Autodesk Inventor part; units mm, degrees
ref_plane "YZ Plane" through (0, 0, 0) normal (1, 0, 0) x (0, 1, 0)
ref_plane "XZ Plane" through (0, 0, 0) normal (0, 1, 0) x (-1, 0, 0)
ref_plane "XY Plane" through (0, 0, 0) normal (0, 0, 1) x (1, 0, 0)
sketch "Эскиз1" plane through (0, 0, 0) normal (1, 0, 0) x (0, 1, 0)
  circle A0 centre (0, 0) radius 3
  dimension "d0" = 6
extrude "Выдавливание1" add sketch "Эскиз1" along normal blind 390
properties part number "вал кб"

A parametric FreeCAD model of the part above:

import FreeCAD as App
import Part
import Sketcher
Q = App.Units.Quantity

doc = App.newDocument("Part")
body = doc.addObject("PartDesign::Body", "Body")

sketch1 = doc.addObject("Sketcher::SketchObject", "Sketch")
body.addObject(sketch1)
sketch1.AttachmentSupport = (doc.YZ_Plane, [""])
sketch1.MapMode = "FlatFace"
sketch1.addGeometry(Part.Circle(App.Vector(0, 0, 0), App.Vector(0, 0, 1), 3), False)
sketch1.addConstraint([
    Sketcher.Constraint("Coincident", 0, 3, -1, 1),
    Sketcher.Constraint("Diameter", 0, Q("6 mm")),
])
pad1 = doc.addObject("PartDesign::Pad", "Pad")
body.addObject(pad1)
pad1.Profile = sketch1
pad1.Length = 390

doc.recompute()
